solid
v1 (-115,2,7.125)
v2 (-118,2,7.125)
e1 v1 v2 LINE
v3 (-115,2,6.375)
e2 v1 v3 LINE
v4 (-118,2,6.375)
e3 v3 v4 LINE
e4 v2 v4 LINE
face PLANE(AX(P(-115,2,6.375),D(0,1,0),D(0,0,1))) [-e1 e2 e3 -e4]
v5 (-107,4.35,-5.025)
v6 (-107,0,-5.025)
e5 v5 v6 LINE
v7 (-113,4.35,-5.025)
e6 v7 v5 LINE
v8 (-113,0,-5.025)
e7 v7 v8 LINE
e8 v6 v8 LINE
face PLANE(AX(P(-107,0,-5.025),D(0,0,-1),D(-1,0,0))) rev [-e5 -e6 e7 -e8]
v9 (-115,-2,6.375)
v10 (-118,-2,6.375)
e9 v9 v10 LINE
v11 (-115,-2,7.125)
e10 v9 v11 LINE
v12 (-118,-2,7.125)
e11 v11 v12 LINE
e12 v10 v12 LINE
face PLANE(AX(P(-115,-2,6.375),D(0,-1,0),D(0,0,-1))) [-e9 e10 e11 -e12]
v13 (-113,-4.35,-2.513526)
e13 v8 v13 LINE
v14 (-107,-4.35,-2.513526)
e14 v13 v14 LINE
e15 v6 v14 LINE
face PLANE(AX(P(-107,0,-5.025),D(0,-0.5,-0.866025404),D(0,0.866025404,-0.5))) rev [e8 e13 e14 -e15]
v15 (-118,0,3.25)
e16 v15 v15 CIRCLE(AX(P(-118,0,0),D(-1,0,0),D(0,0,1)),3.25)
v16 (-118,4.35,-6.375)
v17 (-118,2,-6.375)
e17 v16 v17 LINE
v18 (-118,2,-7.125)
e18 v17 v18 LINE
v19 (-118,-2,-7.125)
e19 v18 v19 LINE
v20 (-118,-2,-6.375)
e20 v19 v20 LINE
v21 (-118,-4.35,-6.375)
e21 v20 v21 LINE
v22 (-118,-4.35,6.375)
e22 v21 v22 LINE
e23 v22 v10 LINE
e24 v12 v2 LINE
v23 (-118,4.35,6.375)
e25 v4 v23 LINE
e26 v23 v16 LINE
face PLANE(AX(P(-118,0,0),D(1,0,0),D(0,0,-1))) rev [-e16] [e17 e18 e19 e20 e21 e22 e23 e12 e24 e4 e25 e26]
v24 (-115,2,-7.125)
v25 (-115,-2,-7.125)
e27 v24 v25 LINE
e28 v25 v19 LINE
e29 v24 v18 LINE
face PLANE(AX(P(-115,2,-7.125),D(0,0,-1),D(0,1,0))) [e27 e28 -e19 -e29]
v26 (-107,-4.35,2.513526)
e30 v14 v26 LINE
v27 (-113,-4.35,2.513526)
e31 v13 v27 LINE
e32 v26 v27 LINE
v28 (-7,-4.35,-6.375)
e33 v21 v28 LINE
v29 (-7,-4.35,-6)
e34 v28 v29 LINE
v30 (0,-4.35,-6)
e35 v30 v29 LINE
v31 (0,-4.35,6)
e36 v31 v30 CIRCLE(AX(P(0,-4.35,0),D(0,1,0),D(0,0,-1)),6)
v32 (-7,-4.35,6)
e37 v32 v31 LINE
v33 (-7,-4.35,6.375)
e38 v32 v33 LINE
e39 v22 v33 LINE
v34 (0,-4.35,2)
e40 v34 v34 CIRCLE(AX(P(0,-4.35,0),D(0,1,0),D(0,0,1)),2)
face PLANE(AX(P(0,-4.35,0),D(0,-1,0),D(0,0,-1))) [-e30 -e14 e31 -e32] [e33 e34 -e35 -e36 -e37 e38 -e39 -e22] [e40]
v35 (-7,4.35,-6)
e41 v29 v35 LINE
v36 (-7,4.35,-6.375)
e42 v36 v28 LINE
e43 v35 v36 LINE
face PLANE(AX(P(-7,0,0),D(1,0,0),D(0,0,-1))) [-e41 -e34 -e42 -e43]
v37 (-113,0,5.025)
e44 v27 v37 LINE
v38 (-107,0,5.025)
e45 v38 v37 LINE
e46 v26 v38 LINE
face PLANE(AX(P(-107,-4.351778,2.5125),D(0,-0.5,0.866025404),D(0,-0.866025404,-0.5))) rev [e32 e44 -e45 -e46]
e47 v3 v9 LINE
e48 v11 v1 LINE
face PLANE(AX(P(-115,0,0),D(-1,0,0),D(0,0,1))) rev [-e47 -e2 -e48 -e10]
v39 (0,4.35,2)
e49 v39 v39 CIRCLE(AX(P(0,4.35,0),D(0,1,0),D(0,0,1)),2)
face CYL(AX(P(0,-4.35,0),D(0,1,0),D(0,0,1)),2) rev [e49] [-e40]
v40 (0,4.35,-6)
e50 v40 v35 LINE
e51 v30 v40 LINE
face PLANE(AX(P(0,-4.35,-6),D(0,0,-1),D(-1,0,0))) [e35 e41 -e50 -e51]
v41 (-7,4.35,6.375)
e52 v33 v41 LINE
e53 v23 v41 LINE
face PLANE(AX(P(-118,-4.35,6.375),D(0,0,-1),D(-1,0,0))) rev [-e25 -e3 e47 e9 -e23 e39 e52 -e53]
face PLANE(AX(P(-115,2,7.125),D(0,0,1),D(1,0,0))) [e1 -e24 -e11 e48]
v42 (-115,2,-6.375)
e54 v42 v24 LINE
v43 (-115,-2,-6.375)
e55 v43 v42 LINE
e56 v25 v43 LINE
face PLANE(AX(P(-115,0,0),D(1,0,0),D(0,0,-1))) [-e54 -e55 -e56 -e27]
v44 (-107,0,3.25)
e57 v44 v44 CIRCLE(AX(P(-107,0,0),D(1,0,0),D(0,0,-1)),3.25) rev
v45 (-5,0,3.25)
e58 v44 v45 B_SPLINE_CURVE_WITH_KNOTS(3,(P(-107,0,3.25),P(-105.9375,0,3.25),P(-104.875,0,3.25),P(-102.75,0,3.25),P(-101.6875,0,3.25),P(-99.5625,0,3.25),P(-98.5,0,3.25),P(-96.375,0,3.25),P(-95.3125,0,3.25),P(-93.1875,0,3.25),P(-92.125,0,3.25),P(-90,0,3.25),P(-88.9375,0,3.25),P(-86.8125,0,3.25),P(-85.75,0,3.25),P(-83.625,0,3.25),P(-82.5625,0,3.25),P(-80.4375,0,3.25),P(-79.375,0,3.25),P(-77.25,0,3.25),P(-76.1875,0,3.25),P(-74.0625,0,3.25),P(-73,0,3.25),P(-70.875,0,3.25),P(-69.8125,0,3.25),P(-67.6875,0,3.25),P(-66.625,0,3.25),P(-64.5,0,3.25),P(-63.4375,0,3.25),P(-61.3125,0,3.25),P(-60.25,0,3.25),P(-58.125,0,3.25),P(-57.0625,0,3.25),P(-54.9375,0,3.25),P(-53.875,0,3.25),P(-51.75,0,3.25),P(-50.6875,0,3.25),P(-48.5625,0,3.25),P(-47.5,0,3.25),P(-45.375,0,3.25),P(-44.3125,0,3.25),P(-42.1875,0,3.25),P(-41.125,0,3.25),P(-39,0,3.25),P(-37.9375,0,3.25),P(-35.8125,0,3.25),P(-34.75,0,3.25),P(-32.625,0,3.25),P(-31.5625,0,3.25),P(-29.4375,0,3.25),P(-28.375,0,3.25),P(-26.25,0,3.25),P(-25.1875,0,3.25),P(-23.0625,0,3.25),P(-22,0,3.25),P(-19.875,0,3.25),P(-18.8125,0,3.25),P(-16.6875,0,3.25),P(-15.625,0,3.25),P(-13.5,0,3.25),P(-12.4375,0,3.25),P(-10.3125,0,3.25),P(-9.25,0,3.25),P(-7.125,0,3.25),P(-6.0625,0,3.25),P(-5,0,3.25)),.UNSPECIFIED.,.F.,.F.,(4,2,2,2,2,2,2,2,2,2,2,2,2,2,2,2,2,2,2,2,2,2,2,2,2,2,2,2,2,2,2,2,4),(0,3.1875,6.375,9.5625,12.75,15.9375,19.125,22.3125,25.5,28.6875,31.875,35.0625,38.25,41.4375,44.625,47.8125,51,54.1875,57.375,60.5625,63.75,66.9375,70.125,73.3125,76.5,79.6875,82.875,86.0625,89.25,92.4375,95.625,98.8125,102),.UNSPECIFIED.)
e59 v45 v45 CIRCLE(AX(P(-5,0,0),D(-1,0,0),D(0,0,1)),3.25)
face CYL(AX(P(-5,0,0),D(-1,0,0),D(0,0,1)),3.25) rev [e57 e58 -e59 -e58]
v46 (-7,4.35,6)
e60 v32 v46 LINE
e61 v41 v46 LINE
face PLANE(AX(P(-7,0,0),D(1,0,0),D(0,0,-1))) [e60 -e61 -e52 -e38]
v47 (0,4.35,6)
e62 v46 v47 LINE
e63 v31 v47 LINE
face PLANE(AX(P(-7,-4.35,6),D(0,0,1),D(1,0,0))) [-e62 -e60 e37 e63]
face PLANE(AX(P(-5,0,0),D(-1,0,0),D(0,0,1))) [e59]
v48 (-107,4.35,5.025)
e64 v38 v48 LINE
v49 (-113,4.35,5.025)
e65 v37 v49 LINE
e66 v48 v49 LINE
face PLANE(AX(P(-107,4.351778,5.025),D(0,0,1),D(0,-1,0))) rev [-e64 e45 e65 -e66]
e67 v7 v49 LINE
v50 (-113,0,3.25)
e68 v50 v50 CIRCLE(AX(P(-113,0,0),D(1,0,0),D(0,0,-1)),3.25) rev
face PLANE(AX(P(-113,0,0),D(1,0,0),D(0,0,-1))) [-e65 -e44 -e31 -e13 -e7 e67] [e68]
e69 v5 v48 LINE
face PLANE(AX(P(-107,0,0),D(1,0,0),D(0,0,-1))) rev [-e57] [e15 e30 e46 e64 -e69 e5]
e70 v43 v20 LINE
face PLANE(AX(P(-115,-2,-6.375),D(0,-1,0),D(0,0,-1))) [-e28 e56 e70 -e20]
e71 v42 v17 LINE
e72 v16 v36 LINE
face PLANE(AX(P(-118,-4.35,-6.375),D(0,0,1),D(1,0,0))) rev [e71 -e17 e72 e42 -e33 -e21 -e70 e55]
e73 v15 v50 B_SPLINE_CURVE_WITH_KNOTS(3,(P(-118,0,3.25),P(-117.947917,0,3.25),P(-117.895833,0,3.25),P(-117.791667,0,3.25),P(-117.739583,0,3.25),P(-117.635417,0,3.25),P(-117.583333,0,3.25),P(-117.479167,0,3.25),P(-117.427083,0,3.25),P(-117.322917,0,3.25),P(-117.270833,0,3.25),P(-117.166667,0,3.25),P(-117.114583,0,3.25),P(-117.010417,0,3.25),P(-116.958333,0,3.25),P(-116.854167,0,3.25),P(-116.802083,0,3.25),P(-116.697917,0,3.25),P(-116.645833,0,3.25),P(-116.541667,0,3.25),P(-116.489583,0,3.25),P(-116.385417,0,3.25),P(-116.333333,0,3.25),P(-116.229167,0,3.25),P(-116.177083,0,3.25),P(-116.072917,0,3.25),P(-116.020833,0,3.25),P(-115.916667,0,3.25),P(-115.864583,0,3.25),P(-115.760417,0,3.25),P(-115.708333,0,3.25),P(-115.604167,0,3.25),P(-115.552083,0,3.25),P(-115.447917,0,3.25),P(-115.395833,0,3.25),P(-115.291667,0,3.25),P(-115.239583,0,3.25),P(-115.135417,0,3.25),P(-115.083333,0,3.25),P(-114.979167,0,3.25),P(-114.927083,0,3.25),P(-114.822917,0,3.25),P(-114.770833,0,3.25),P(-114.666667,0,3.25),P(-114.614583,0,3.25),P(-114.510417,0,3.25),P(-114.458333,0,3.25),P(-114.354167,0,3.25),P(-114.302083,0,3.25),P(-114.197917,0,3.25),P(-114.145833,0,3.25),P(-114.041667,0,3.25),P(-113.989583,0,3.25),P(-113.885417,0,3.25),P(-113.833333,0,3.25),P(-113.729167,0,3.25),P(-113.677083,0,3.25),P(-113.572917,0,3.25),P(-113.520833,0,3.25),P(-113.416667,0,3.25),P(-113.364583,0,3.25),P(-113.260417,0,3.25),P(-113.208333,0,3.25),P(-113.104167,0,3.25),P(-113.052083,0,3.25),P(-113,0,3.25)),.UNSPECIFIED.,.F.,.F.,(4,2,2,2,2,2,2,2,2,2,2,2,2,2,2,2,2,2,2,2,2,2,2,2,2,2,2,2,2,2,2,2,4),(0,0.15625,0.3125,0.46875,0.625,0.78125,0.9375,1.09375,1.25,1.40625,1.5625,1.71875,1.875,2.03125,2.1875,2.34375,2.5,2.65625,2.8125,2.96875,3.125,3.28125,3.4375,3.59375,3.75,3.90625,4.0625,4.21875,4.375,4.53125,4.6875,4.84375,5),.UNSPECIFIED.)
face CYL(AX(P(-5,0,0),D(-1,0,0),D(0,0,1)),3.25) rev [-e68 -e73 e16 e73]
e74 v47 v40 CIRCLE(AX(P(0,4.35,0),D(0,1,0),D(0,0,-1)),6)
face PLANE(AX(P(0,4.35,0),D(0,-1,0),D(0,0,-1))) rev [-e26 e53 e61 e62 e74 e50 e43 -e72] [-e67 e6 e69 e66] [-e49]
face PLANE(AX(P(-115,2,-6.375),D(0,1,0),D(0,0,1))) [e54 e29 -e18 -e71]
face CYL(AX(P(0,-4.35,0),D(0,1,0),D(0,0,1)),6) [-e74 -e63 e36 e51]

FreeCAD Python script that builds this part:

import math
import FreeCAD as App
import Part
import Sketcher

V = App.Vector
Q = App.Units.Quantity

doc = App.newDocument("Part")
body = doc.addObject("PartDesign::Body", "Body")

# Sketch on XZ plane
sketch1 = body.newObject("Sketcher::SketchObject", "Sketch")
sketch1.AttachmentSupport = (doc.getObject("XZ_Plane"), [""])
sketch1.MapMode = "FlatFace"
sketch1.addGeometry(Part.LineSegment(V(0, -6, 0), V(-7, -6, 0)), False)
sketch1.addGeometry(Part.LineSegment(V(-7, -6, 0), V(-7, 6, 0)), False)
sketch1.addGeometry(Part.LineSegment(V(-7, 6, 0), V(0, 6, 0)), False)
sketch1.addGeometry(Part.ArcOfCircle(Part.Circle(V(0, 0, 0), V(0, 0, 1), 6), math.radians(-90), math.radians(90)), False)
sketch1.addGeometry(Part.Circle(V(0, 0, 0), V(0, 0, 1), 2), False)
sketch1.addConstraint(Sketcher.Constraint("Coincident", 0, 2, 1, 1))
sketch1.addConstraint(Sketcher.Constraint("Coincident", 1, 2, 2, 1))
sketch1.addConstraint(Sketcher.Constraint("Tangent", 2, 2, 3, 2))
sketch1.addConstraint(Sketcher.Constraint("Tangent", 3, 1, 0, 1))
sketch1.addConstraint(Sketcher.Constraint("Horizontal", 0))
sketch1.addConstraint(Sketcher.Constraint("Vertical", 1))
sketch1.addConstraint(Sketcher.Constraint("Horizontal", 2))
sketch1.addConstraint(Sketcher.Constraint("Coincident", 3, 3, -1, 1))
sketch1.addConstraint(Sketcher.Constraint("Coincident", 4, 3, -1, 1))
sketch1.addConstraint(Sketcher.Constraint("Diameter", 4, Q("4 mm")))
sketch1.addConstraint(Sketcher.Constraint("Radius", 3, Q("6 mm")))
sketch1.addConstraint(Sketcher.Constraint("DistanceX", 0, 2, 0, 1, Q("7 mm")))
pad1 = body.newObject("PartDesign::Pad", "Pad")
pad1.Profile = sketch1
pad1.Type = "TwoLengths"
pad1.Length = 4.35
pad1.Length2 = 4.35
pad1.Reversed = True

# Sketch on YZ plane
sketch2 = body.newObject("Sketcher::SketchObject", "Sketch001")
sketch2.AttachmentSupport = (doc.getObject("YZ_Plane"), [""])
sketch2.MapMode = "FlatFace"
sketch2.AttachmentOffset = App.Placement(V(0, 0, -7), App.Rotation())
sketch2.addGeometry(Part.LineSegment(V(-4, -6, 0), V(-4, 6, 0)), False)
sketch2.addGeometry(Part.LineSegment(V(-4, 6, 0), V(4, 6, 0)), False)
sketch2.addGeometry(Part.LineSegment(V(4, 6, 0), V(4, -6, 0)), False)
sketch2.addGeometry(Part.LineSegment(V(4, -6, 0), V(-4, -6, 0)), False)
sketch2.addConstraint(Sketcher.Constraint("Coincident", 0, 2, 1, 1))
sketch2.addConstraint(Sketcher.Constraint("Coincident", 1, 2, 2, 1))
sketch2.addConstraint(Sketcher.Constraint("Coincident", 2, 2, 3, 1))
sketch2.addConstraint(Sketcher.Constraint("Coincident", 3, 2, 0, 1))
sketch2.addConstraint(Sketcher.Constraint("Vertical", 0))
sketch2.addConstraint(Sketcher.Constraint("Horizontal", 1))
sketch2.addConstraint(Sketcher.Constraint("Vertical", 2))
sketch2.addConstraint(Sketcher.Constraint("Horizontal", 3))
sketch2.addConstraint(Sketcher.Constraint("Symmetric", 0, 2, 2, 2, -1, 1))
sketch2.addConstraint(Sketcher.Constraint("DistanceX", 1, 1, 1, 2, Q("8.7 mm")))
sketch2.addConstraint(Sketcher.Constraint("DistanceY", 0, 1, 0, 2, Q("12.75 mm")))
pad2 = body.newObject("PartDesign::Pad", "Pad001")
pad2.Profile = sketch2
pad2.Length = 111
pad2.Reversed = True

# Sketch on YZ plane
sketch3 = body.newObject("Sketcher::SketchObject", "Sketch002")
sketch3.AttachmentSupport = (doc.getObject("YZ_Plane"), [""])
sketch3.MapMode = "FlatFace"
sketch3.AttachmentOffset = App.Placement(V(0, 0, -118), App.Rotation())
sketch3.addGeometry(Part.Circle(V(0, 0, 0), V(0, 0, 1), 3.2), False)
sketch3.addConstraint(Sketcher.Constraint("Coincident", 0, 3, -1, 1))
sketch3.addConstraint(Sketcher.Constraint("Diameter", 0, Q("6.5 mm")))
pocket1 = body.newObject("PartDesign::Pocket", "Pocket")
pocket1.Profile = sketch3
pocket1.Length = 113
pocket1.Reversed = True

# Sketch on YZ plane
sketch4 = body.newObject("Sketcher::SketchObject", "Sketch003")
sketch4.AttachmentSupport = (doc.getObject("YZ_Plane"), [""])
sketch4.MapMode = "FlatFace"
sketch4.AttachmentOffset = App.Placement(V(0, 0, -113), App.Rotation())
sketch4.addGeometry(Part.LineSegment(V(4.4, -5, 0), V(0, -5, 0)), False)
sketch4.addGeometry(Part.LineSegment(V(0, -5, 0), V(-4.4, -2.5, 0)), False)
sketch4.addGeometry(Part.LineSegment(V(-4.4, -2.5, 0), V(-4.4, 2.5, 0)), False)
sketch4.addGeometry(Part.LineSegment(V(-4.4, 2.5, 0), V(0, 5, 0)), False)
sketch4.addGeometry(Part.LineSegment(V(0, 5, 0), V(4.4, 5, 0)), False)
sketch4.addGeometry(Part.LineSegment(V(4.4, 5, 0), V(4.4, -5, 0)), False)
sketch4.addConstraint(Sketcher.Constraint("Coincident", 0, 2, 1, 1))
sketch4.addConstraint(Sketcher.Constraint("Coincident", 1, 2, 2, 1))
sketch4.addConstraint(Sketcher.Constraint("Coincident", 2, 2, 3, 1))
sketch4.addConstraint(Sketcher.Constraint("Coincident", 3, 2, 4, 1))
sketch4.addConstraint(Sketcher.Constraint("Coincident", 4, 2, 5, 1))
sketch4.addConstraint(Sketcher.Constraint("Coincident", 5, 2, 0, 1))
sketch4.addConstraint(Sketcher.Constraint("Horizontal", 0))
sketch4.addConstraint(Sketcher.Constraint("Vertical", 2))
sketch4.addConstraint(Sketcher.Constraint("Horizontal", 4))
sketch4.addConstraint(Sketcher.Constraint("Vertical", 5))
sketch4.addConstraint(Sketcher.Constraint("Symmetric", 0, 2, 3, 2, -1, 1))
sketch4.addConstraint(Sketcher.Constraint("PointOnObject", 0, 2, -2))
sketch4.addConstraint(Sketcher.Constraint("Equal", 1, 3))
sketch4.addConstraint(Sketcher.Constraint("Angle", 1, Q("150 deg")))
sketch4.addConstraint(Sketcher.Constraint("DistanceY", 5, 2, 5, 1, Q("10.05 mm")))
sketch4.addConstraint(Sketcher.Constraint("DistanceY", 2, 1, 2, 2, Q("5.025 mm")))
sketch4.addConstraint(Sketcher.Constraint("DistanceX", 0, 2, 0, 1, Q("4.351778 mm")))
pocket2 = body.newObject("PartDesign::Pocket", "Pocket001")
pocket2.Profile = sketch4
pocket2.Length = 6
pocket2.Reversed = True

# Sketch on YZ plane
sketch5 = body.newObject("Sketcher::SketchObject", "Sketch004")
sketch5.AttachmentSupport = (doc.getObject("YZ_Plane"), [""])
sketch5.MapMode = "FlatFace"
sketch5.AttachmentOffset = App.Placement(V(0, 0, -118), App.Rotation())
sketch5.addGeometry(Part.LineSegment(V(2, -7.1, 0), V(-2, -7.1, 0)), False)
sketch5.addGeometry(Part.LineSegment(V(-2, -7.1, 0), V(-2, -6.4, 0)), False)
sketch5.addGeometry(Part.LineSegment(V(-2, -6.4, 0), V(2, -6.4, 0)), False)
sketch5.addGeometry(Part.LineSegment(V(2, -6.4, 0), V(2, -7.1, 0)), False)
sketch5.addGeometry(Part.LineSegment(V(2, 6.4, 0), V(-2, 6.4, 0)), False)
sketch5.addGeometry(Part.LineSegment(V(-2, 6.4, 0), V(-2, 7.1, 0)), False)
sketch5.addGeometry(Part.LineSegment(V(-2, 7.1, 0), V(2, 7.1, 0)), False)
sketch5.addGeometry(Part.LineSegment(V(2, 7.1, 0), V(2, 6.4, 0)), False)
sketch5.addConstraint(Sketcher.Constraint("Coincident", 0, 2, 1, 1))
sketch5.addConstraint(Sketcher.Constraint("Coincident", 1, 2, 2, 1))
sketch5.addConstraint(Sketcher.Constraint("Coincident", 2, 2, 3, 1))
sketch5.addConstraint(Sketcher.Constraint("Coincident", 3, 2, 0, 1))
sketch5.addConstraint(Sketcher.Constraint("Coincident", 4, 2, 5, 1))
sketch5.addConstraint(Sketcher.Constraint("Coincident", 5, 2, 6, 1))
sketch5.addConstraint(Sketcher.Constraint("Coincident", 6, 2, 7, 1))
sketch5.addConstraint(Sketcher.Constraint("Coincident", 7, 2, 4, 1))
sketch5.addConstraint(Sketcher.Constraint("Horizontal", 0))
sketch5.addConstraint(Sketcher.Constraint("Vertical", 1))
sketch5.addConstraint(Sketcher.Constraint("Horizontal", 2))
sketch5.addConstraint(Sketcher.Constraint("Vertical", 3))
sketch5.addConstraint(Sketcher.Constraint("Horizontal", 4))
sketch5.addConstraint(Sketcher.Constraint("Vertical", 5))
sketch5.addConstraint(Sketcher.Constraint("Horizontal", 6))
sketch5.addConstraint(Sketcher.Constraint("Vertical", 7))
sketch5.addConstraint(Sketcher.Constraint("Symmetric", 2, 2, 4, 2, -1, 1))
sketch5.addConstraint(Sketcher.Constraint("Symmetric", 0, 2, 6, 2, -1, 1))
sketch5.addConstraint(Sketcher.Constraint("Vertical", 1, 2, 4, 2))
sketch5.addConstraint(Sketcher.Constraint("DistanceX", 0, 2, 0, 1, Q("4 mm")))
sketch5.addConstraint(Sketcher.Constraint("DistanceY", 1, 1, 1, 2, Q("0.75 mm")))
sketch5.addConstraint(Sketcher.Constraint("DistanceY", 0, 2, 4, 2, Q("13.5 mm")))
pad3 = body.newObject("PartDesign::Pad", "Pad002")
pad3.Profile = sketch5
pad3.Length = 3

doc.recompute()
